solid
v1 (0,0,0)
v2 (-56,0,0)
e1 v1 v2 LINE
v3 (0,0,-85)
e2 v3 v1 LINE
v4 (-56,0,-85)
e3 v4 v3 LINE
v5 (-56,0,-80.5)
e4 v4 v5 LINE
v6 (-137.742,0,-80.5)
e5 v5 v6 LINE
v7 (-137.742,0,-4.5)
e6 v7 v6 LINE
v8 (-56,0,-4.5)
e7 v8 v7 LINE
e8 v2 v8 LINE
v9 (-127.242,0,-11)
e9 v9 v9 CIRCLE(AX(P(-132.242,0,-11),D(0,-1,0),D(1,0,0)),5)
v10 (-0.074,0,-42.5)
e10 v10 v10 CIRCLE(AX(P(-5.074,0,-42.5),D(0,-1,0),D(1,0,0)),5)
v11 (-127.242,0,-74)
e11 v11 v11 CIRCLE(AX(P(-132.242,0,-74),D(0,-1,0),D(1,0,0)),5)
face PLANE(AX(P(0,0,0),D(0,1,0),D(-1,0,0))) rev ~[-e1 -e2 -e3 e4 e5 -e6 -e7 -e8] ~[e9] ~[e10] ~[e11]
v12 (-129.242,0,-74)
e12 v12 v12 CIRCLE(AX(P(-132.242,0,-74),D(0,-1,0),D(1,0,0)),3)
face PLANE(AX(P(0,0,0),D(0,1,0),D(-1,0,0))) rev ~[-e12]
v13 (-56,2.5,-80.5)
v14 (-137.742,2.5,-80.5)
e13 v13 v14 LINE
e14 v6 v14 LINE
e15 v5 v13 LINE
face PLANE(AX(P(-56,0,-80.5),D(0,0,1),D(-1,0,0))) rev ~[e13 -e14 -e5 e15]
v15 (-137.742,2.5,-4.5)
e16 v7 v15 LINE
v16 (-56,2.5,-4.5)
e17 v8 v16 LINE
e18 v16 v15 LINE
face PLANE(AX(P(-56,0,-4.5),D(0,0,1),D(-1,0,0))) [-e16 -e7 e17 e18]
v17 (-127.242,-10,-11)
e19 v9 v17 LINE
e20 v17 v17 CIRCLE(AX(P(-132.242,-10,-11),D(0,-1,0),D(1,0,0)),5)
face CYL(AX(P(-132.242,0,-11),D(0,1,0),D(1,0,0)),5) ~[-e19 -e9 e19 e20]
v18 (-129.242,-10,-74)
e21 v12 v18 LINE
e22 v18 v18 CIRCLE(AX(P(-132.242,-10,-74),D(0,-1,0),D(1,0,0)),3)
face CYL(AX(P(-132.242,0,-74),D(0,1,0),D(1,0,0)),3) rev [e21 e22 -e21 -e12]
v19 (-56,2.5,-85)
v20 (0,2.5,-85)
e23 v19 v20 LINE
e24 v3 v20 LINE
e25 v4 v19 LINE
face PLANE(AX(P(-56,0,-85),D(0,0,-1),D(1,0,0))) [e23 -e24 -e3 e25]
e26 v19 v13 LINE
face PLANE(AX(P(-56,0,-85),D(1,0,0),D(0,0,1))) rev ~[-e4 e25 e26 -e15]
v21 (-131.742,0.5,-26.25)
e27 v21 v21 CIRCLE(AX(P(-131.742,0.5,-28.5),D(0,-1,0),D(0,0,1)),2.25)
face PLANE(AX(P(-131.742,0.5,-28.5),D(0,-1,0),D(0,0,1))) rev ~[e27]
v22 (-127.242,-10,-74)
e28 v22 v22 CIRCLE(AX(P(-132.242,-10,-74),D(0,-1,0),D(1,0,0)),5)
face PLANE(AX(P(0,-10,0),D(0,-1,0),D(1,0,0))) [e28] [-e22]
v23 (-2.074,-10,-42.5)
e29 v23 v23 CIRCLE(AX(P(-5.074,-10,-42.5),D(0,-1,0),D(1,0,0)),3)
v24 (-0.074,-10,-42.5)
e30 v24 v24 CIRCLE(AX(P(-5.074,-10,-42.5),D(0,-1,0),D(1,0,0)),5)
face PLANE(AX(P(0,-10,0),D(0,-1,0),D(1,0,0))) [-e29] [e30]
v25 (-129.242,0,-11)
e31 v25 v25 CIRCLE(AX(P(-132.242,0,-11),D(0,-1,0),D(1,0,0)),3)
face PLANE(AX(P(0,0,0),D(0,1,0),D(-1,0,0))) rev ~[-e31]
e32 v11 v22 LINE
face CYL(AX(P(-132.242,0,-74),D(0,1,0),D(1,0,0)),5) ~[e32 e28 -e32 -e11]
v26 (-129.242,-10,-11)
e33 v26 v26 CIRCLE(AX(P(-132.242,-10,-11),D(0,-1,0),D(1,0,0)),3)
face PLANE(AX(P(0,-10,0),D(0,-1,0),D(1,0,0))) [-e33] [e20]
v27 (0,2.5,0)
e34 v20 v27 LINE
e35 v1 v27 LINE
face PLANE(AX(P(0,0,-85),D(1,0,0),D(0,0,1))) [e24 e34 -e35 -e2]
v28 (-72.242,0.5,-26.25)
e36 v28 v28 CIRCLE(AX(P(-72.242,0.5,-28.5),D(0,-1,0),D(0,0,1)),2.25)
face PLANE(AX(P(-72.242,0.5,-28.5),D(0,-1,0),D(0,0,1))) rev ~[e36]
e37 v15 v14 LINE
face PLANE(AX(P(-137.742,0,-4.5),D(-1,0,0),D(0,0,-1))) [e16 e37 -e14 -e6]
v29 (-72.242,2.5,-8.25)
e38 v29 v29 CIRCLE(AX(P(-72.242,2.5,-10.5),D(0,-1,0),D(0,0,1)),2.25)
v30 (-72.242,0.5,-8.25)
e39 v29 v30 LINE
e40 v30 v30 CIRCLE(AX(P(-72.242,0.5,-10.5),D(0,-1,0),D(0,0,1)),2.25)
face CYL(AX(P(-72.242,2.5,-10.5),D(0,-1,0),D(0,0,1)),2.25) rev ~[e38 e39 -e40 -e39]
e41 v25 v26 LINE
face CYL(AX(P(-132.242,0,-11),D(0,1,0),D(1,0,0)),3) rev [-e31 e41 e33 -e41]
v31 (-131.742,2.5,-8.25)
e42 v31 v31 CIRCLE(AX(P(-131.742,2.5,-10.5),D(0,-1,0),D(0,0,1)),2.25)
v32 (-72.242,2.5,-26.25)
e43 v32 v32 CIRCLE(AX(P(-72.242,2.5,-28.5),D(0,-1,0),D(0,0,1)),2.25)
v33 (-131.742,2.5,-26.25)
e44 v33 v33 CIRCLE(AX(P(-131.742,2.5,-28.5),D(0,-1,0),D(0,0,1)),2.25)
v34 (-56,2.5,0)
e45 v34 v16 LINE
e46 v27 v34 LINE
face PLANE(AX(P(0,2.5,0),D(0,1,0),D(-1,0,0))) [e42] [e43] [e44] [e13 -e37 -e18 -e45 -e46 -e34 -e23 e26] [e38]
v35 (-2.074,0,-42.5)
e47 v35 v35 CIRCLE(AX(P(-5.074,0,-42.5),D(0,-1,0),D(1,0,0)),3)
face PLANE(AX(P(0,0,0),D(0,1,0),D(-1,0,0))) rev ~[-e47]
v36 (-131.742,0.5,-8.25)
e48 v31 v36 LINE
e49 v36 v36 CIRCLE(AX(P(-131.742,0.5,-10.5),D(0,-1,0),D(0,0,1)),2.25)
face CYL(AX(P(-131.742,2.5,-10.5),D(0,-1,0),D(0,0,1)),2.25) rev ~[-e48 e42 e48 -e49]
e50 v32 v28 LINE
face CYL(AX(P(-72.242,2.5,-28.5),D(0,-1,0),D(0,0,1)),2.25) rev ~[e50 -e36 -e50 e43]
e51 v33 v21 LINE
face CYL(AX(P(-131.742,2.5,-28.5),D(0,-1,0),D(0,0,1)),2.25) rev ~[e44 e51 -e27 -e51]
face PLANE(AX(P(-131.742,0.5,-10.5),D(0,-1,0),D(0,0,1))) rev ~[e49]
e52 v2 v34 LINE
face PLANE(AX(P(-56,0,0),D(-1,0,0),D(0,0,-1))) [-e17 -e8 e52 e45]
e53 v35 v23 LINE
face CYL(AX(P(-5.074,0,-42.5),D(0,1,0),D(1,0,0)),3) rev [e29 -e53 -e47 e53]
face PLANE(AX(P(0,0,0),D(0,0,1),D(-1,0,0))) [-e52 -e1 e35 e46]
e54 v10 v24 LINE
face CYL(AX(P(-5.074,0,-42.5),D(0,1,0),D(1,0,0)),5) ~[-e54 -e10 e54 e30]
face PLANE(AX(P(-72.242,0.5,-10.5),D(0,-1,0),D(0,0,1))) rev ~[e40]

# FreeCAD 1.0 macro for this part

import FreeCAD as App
import Part
import Sketcher

V = App.Vector


def add_polygon(sketch, points):
    """Adds a closed chain of lines whose ends are joined by coincident constraints."""
    first, n = sketch.GeometryCount, len(points)
    for a, b in zip(points, points[1:] + points[:1]):
        sketch.addGeometry(Part.LineSegment(App.Vector(*a, 0), App.Vector(*b, 0)), False)
    for i in range(n):
        sketch.addConstraint(Sketcher.Constraint("Coincident", first + i, 2, first + (i + 1) % n, 1))

doc = App.newDocument("Part")
params = doc.addObject("Spreadsheet::Sheet", "Params")
for row, (alias, value) in enumerate([
    ("sketch1_width", "56 mm"),
    ("sketch1_height", "85 mm"),
    ("sketch1_height2", "76 mm"),
    ("pad1_length", "2.5 mm"),
    ("sketch2_diameter", "10 mm"),
    ("sketch2_diameter2", "6 mm"),
    ("pad2_length", "10 mm"),
    ("sketch3_diameter", "4.5 mm"),
    ("hole_diameter", "4.5 mm"),
    ("hole_depth", "2 mm"),
], start=1):
    params.set(f"A{row}", alias)
    params.set(f"B{row}", "=" + value)
    params.setAlias(f"B{row}", alias)

body = doc.addObject("PartDesign::Body", "Body")

# Sketch on XZ plane
sketch1 = body.newObject("Sketcher::SketchObject", "Sketch")
sketch1.AttachmentSupport = (doc.getObject("XZ_Plane"), [""])
sketch1.MapMode = "FlatFace"
add_polygon(sketch1, [(-56, 0), (0, 0), (0, -85), (-56, -85), (-56, -80.5), (-137.7, -80.5), (-137.7, -4.5), (-56, -4.5)])  # lines 0-7
sketch1.addConstraint([
    Sketcher.Constraint("Horizontal", 0),
    Sketcher.Constraint("Vertical", 1),
    Sketcher.Constraint("Horizontal", 2),
    Sketcher.Constraint("Vertical", 3),
    Sketcher.Constraint("Horizontal", 4),
    Sketcher.Constraint("Vertical", 5),
    Sketcher.Constraint("Horizontal", 6),
    Sketcher.Constraint("Vertical", 7),
    Sketcher.Constraint("Coincident", 0, 2, -1, 1),
    Sketcher.Constraint("Vertical", 3, 2, 6, 2),
    Sketcher.Constraint("Equal", 3, 7),
    Sketcher.Constraint("DistanceX", 0, 1, 0, 2, 56.0),
    Sketcher.Constraint("DistanceY", 1, 2, 1, 1, 85.0),
    Sketcher.Constraint("DistanceY", 5, 1, 5, 2, 76.0),
    Sketcher.Constraint("DistanceX", 4, 2, 4, 1, 81.742),
])
sketch1.setExpression("Constraints[19]", "Params.sketch1_width")
sketch1.setExpression("Constraints[20]", "Params.sketch1_height")
sketch1.setExpression("Constraints[21]", "Params.sketch1_height2")
pad1 = body.newObject("PartDesign::Pad", "Pad")
pad1.Profile = sketch1
pad1.setExpression("Length", "Params.pad1_length")
pad1.Reversed = True

# Sketch on XZ plane
sketch2 = body.newObject("Sketcher::SketchObject", "Sketch001")
sketch2.AttachmentSupport = (doc.getObject("XZ_Plane"), [""])
sketch2.MapMode = "FlatFace"
sketch2.addGeometry([
    Part.Circle(V(-5.1, -42.5, 0), V(0, 0, 1), 5),  # 0
    Part.Circle(V(-5.1, -42.5, 0), V(0, 0, 1), 3),  # 1
    Part.Circle(V(-132.2, -74, 0), V(0, 0, 1), 5),  # 2
    Part.Circle(V(-132.2, -74, 0), V(0, 0, 1), 3),  # 3
    Part.Circle(V(-132.2, -11, 0), V(0, 0, 1), 5),  # 4
    Part.Circle(V(-132.2, -11, 0), V(0, 0, 1), 3),  # 5
], False)
sketch2.addConstraint([
    Sketcher.Constraint("Coincident", 1, 3, 0, 3),
    Sketcher.Constraint("Coincident", 3, 3, 2, 3),
    Sketcher.Constraint("Coincident", 5, 3, 4, 3),
    Sketcher.Constraint("Equal", 0, 2),
    Sketcher.Constraint("Equal", 1, 3),
    Sketcher.Constraint("Equal", 2, 4),
    Sketcher.Constraint("Equal", 3, 5),
    Sketcher.Constraint("Vertical", 3, 3, 4, 3),
    Sketcher.Constraint("Diameter", 0, 10.0),
    Sketcher.Constraint("Diameter", 1, 6.0),
    Sketcher.Constraint("DistanceY", 2, 3, 4, 3, 63.0),
    Sketcher.Constraint("DistanceX", 0, 3, -1, 1, 5.074),
    Sketcher.Constraint("DistanceY", 2, 3, -1, 1, 74.0),
    Sketcher.Constraint("DistanceY", 0, 3, -1, 1, 42.5),
    Sketcher.Constraint("DistanceX", 2, 3, -1, 1, 132.242),
])
sketch2.setExpression("Constraints[8]", "Params.sketch2_diameter")
sketch2.setExpression("Constraints[9]", "Params.sketch2_diameter2")
pad2 = body.newObject("PartDesign::Pad", "Pad001")
pad2.Profile = sketch2
pad2.setExpression("Length", "Params.pad2_length")

# Sketch on XZ plane
sketch3 = body.newObject("Sketcher::SketchObject", "Sketch002")
sketch3.AttachmentSupport = (doc.getObject("XZ_Plane"), [""])
sketch3.MapMode = "FlatFace"
sketch3.AttachmentOffset = App.Placement(V(0, 0, -2.5), App.Rotation())
sketch3.addGeometry([
    Part.Circle(V(-72.2, -28.5, 0), V(0, 0, 1), 2.2),
    Part.Circle(V(-72.2, -10.5, 0), V(0, 0, 1), 2.2),
    Part.Circle(V(-131.7, -10.5, 0), V(0, 0, 1), 2.2),
    Part.Circle(V(-131.7, -28.5, 0), V(0, 0, 1), 2.2),
], False)
sketch3.addConstraint([
    Sketcher.Constraint("Equal", 0, 1),
    Sketcher.Constraint("Equal", 1, 2),
    Sketcher.Constraint("Equal", 2, 3),
    Sketcher.Constraint("Horizontal", 1, 3, 2, 3),
    Sketcher.Constraint("Horizontal", 0, 3, 3, 3),
    Sketcher.Constraint("Vertical", 0, 3, 1, 3),
    Sketcher.Constraint("Vertical", 2, 3, 3, 3),
    Sketcher.Constraint("Diameter", 0, 4.5),
    Sketcher.Constraint("DistanceY", 0, 3, 1, 3, 18.0),
    Sketcher.Constraint("DistanceY", 0, 3, -1, 1, 28.5),
    Sketcher.Constraint("DistanceX", 2, 3, 1, 3, 59.5),
    Sketcher.Constraint("DistanceX", 0, 3, -1, 1, 72.242),
])
sketch3.setExpression("Constraints[7]", "Params.sketch3_diameter")
doc.recompute()
hole = body.newObject("PartDesign::Hole", "Hole")
hole.Profile = sketch3
hole.ThreadType = "None"
hole.setExpression("Diameter", "Params.hole_diameter")
hole.DepthType = "Dimension"
hole.setExpression("Depth", "Params.hole_depth")
hole.DrillPoint = "Flat"
hole.Reversed = True

doc.recompute()
